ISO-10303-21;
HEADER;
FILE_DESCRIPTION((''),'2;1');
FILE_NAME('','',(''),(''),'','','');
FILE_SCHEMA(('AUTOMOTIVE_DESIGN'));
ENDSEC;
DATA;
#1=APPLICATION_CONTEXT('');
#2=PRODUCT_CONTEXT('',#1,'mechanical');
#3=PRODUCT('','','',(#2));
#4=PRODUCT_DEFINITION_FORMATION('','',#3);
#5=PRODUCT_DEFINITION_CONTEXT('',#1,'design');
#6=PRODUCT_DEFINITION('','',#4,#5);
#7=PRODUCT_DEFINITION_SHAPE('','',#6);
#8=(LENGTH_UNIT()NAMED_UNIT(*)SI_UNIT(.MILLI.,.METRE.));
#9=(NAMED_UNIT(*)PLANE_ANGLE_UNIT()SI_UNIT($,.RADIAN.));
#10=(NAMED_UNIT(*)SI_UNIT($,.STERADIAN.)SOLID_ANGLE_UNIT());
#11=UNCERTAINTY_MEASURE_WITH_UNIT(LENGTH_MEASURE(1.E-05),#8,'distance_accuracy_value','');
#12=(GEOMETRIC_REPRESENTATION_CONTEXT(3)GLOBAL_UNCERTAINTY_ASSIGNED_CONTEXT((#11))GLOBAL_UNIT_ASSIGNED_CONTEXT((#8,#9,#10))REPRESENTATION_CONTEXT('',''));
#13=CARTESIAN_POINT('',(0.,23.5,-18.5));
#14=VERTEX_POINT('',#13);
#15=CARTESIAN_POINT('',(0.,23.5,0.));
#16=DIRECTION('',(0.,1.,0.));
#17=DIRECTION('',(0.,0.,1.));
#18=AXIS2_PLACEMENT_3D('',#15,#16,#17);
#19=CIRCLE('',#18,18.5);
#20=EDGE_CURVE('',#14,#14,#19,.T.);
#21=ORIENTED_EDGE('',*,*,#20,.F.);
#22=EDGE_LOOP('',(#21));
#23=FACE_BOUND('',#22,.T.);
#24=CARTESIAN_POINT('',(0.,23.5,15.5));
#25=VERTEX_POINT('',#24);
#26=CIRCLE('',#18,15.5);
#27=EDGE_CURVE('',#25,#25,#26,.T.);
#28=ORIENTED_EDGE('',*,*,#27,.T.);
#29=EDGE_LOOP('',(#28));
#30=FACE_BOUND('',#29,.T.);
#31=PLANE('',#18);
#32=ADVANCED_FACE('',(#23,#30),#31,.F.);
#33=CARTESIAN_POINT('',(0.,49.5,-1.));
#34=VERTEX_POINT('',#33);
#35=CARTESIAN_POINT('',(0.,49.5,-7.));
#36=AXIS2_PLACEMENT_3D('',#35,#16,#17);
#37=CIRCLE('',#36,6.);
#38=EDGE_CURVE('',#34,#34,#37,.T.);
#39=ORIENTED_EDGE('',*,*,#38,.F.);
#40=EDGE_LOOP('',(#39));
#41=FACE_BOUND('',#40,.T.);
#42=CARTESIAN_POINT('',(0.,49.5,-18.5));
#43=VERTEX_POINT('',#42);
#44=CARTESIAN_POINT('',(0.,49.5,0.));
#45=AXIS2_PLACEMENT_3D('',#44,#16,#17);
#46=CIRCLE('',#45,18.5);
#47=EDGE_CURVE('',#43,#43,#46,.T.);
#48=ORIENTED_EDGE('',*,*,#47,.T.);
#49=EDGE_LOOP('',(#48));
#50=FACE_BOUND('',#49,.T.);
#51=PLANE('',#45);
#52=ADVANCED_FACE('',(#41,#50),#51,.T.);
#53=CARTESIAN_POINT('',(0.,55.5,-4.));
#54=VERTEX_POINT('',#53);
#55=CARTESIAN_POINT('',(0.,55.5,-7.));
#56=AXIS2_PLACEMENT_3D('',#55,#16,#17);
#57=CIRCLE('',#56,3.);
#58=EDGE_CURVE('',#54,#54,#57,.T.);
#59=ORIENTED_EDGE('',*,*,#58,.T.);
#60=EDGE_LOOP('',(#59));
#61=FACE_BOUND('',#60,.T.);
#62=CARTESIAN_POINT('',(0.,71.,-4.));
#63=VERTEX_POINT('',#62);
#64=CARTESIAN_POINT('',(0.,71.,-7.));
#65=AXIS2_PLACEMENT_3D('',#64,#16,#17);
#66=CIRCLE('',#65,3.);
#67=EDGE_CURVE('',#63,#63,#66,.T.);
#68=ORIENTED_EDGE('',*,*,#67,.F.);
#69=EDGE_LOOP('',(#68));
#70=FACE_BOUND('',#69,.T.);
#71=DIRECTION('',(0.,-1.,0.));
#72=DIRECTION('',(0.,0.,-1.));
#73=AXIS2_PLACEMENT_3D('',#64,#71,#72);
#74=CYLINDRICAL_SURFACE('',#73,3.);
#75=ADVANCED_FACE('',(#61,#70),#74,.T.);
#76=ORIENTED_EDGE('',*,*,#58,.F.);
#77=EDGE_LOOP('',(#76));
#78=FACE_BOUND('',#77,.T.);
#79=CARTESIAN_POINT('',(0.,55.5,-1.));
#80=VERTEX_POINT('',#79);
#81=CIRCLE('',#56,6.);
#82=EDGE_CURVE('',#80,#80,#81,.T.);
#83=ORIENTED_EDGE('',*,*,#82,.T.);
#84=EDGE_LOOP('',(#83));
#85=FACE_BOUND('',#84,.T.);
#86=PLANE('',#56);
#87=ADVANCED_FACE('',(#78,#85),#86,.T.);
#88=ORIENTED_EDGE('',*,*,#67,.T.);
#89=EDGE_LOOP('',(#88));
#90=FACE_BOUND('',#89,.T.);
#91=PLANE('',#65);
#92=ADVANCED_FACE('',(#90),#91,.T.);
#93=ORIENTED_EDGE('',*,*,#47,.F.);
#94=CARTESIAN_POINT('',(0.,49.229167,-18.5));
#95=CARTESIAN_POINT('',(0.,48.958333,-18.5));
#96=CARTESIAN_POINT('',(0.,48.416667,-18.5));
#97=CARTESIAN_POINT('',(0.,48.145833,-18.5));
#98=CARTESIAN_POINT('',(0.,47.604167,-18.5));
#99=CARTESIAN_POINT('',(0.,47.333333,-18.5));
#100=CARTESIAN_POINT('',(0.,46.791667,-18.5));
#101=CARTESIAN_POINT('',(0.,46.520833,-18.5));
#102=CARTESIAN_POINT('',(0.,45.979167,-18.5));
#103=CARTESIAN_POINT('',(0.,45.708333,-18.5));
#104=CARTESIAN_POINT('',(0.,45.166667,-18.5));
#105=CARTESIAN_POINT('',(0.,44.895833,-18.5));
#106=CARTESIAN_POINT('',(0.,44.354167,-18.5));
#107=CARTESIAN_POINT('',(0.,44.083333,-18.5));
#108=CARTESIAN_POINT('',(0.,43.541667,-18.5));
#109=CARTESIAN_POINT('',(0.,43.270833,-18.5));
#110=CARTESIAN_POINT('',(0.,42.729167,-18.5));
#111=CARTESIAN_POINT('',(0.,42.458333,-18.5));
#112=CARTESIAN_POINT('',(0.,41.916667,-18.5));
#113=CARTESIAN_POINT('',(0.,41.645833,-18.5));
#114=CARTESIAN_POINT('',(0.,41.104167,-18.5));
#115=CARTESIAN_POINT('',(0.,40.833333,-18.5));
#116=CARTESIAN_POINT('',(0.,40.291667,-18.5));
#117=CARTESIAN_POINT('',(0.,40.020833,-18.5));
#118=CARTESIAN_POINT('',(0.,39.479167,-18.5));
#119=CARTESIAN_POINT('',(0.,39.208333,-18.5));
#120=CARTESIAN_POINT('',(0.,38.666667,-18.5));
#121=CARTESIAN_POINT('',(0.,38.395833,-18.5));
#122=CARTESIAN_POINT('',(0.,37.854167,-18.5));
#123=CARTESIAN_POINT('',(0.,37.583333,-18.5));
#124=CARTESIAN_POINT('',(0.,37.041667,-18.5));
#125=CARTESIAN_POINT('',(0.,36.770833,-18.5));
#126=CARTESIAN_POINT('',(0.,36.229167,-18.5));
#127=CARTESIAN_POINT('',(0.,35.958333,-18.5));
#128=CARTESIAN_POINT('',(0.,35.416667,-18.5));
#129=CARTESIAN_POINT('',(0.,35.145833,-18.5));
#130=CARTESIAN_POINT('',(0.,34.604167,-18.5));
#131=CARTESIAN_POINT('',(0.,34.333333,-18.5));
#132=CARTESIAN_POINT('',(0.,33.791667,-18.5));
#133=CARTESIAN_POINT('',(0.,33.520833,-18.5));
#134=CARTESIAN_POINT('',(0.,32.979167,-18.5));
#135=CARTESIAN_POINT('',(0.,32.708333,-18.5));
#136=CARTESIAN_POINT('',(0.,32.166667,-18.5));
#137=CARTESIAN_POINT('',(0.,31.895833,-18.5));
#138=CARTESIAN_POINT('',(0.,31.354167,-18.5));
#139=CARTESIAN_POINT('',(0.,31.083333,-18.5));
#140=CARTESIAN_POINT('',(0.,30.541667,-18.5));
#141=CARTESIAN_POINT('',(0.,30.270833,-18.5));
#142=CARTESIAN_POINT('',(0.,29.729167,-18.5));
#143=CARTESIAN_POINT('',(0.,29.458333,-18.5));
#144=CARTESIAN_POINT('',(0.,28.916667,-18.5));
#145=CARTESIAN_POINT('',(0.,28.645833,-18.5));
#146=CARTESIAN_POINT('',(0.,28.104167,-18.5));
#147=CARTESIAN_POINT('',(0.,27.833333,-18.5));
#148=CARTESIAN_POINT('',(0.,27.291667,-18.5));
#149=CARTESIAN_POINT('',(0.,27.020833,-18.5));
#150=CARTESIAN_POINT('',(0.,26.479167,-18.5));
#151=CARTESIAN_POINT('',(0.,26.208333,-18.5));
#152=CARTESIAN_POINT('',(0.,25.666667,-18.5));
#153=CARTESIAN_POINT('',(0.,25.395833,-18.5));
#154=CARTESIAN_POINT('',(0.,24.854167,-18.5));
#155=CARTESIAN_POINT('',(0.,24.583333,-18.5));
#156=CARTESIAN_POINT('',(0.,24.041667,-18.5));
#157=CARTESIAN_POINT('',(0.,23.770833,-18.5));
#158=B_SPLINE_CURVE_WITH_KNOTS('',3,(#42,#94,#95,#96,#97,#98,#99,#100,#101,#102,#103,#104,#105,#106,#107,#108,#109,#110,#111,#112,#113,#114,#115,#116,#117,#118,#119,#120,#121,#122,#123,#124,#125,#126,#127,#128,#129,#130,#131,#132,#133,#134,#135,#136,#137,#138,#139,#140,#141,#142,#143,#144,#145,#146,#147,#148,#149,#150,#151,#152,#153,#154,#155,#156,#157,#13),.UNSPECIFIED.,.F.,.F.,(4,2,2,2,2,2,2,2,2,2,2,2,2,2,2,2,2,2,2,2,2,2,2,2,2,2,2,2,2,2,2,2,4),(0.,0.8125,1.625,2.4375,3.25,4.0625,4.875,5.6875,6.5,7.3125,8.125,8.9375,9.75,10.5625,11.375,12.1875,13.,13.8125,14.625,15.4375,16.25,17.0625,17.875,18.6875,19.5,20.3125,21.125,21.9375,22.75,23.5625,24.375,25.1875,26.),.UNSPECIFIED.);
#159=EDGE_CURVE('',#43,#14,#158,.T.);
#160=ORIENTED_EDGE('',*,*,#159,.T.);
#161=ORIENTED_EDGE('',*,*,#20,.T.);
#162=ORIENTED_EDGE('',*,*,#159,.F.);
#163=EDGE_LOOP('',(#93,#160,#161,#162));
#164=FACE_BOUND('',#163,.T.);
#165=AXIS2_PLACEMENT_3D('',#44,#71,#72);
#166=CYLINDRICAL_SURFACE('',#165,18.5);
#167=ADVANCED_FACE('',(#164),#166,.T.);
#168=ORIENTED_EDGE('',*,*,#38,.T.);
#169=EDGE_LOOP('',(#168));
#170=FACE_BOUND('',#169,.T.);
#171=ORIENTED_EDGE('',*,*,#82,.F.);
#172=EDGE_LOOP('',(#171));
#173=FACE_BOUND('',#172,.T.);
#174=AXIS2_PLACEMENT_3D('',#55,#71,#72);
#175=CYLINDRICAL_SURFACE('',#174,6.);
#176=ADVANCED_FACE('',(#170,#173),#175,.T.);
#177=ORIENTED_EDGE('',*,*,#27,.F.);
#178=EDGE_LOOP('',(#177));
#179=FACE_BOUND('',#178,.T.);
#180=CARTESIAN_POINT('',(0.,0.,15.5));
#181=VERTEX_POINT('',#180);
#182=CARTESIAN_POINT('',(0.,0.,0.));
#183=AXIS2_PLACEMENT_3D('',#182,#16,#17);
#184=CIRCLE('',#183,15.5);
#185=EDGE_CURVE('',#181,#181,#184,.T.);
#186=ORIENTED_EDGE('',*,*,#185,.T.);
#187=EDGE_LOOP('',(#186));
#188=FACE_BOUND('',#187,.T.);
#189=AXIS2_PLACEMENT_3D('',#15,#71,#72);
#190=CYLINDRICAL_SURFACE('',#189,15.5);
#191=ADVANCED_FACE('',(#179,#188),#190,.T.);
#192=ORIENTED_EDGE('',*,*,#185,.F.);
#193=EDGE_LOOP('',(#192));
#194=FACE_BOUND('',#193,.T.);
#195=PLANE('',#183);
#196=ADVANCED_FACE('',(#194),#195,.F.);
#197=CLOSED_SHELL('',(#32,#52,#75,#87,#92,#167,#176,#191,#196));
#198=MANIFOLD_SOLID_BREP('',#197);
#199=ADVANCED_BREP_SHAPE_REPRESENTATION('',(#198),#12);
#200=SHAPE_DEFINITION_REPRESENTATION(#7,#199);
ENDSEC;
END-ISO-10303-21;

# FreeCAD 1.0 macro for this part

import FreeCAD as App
import Part
import Sketcher

V = App.Vector

doc = App.newDocument("Part")
params = doc.addObject("Spreadsheet::Sheet", "Params")
for row, (alias, value) in enumerate([
    ("sketch1_diameter", "31 mm"),
    ("pad1_length", "23.5 mm"),
    ("sketch2_diameter", "37 mm"),
    ("pad2_length", "26 mm"),
    ("sketch3_diameter", "12 mm"),
    ("pad3_length", "6 mm"),
    ("sketch4_diameter", "6 mm"),
    ("pad4_length", "15.5 mm"),
], start=1):
    params.set(f"A{row}", alias)
    params.set(f"B{row}", "=" + value)
    params.setAlias(f"B{row}", alias)

body = doc.addObject("PartDesign::Body", "Body")

sketch1 = doc.addObject("Sketcher::SketchObject", "Sketch")
body.addObject(sketch1)
sketch1.AttachmentSupport = (doc.XZ_Plane, [""])
sketch1.MapMode = "FlatFace"
sketch1.addGeometry(Part.Circle(V(0, 0, 0), V(0, 0, 1), 16), False)
sketch1.addConstraint([
    Sketcher.Constraint("Coincident", 0, 3, -1, 1),
    Sketcher.Constraint("Diameter", 0, 31.0),
])
sketch1.setExpression("Constraints[1]", "Params.sketch1_diameter")
pad1 = doc.addObject("PartDesign::Pad", "Pad")
body.addObject(pad1)
pad1.Profile = sketch1
pad1.setExpression("Length", "Params.pad1_length")
pad1.Reversed = True

sketch2 = doc.addObject("Sketcher::SketchObject", "Sketch001")
body.addObject(sketch2)
sketch2.AttachmentSupport = (doc.XZ_Plane, [""])
sketch2.MapMode = "FlatFace"
sketch2.AttachmentOffset = App.Placement(V(0, 0, -23.5), App.Rotation())
sketch2.addGeometry(Part.Circle(V(0, 0, 0), V(0, 0, 1), 18), False)
sketch2.addConstraint([
    Sketcher.Constraint("Coincident", 0, 3, -1, 1),
    Sketcher.Constraint("Diameter", 0, 37.0),
])
sketch2.setExpression("Constraints[1]", "Params.sketch2_diameter")
pad2 = doc.addObject("PartDesign::Pad", "Pad001")
body.addObject(pad2)
pad2.Profile = sketch2
pad2.setExpression("Length", "Params.pad2_length")
pad2.Reversed = True

sketch3 = doc.addObject("Sketcher::SketchObject", "Sketch002")
body.addObject(sketch3)
sketch3.AttachmentSupport = (doc.XZ_Plane, [""])
sketch3.MapMode = "FlatFace"
sketch3.AttachmentOffset = App.Placement(V(0, 0, -49.5), App.Rotation())
sketch3.addGeometry(Part.Circle(V(0, -7, 0), V(0, 0, 1), 6), False)
sketch3.addConstraint([
    Sketcher.Constraint("PointOnObject", 0, 3, -2),
    Sketcher.Constraint("Diameter", 0, 12.0),
    Sketcher.Constraint("DistanceY", 0, 3, -1, 1, 7.0),
])
sketch3.setExpression("Constraints[1]", "Params.sketch3_diameter")
pad3 = doc.addObject("PartDesign::Pad", "Pad002")
body.addObject(pad3)
pad3.Profile = sketch3
pad3.setExpression("Length", "Params.pad3_length")
pad3.Reversed = True

sketch4 = doc.addObject("Sketcher::SketchObject", "Sketch003")
body.addObject(sketch4)
sketch4.AttachmentSupport = (doc.XZ_Plane, [""])
sketch4.MapMode = "FlatFace"
sketch4.AttachmentOffset = App.Placement(V(0, 0, -55.5), App.Rotation())
sketch4.addGeometry(Part.Circle(V(0, -7, 0), V(0, 0, 1), 3), False)
sketch4.addConstraint([
    Sketcher.Constraint("PointOnObject", 0, 3, -2),
    Sketcher.Constraint("Diameter", 0, 6.0),
    Sketcher.Constraint("DistanceY", 0, 3, -1, 1, 7.0),
])
sketch4.setExpression("Constraints[1]", "Params.sketch4_diameter")
pad4 = doc.addObject("PartDesign::Pad", "Pad003")
body.addObject(pad4)
pad4.Profile = sketch4
pad4.setExpression("Length", "Params.pad4_length")
pad4.Reversed = True

doc.recompute()
